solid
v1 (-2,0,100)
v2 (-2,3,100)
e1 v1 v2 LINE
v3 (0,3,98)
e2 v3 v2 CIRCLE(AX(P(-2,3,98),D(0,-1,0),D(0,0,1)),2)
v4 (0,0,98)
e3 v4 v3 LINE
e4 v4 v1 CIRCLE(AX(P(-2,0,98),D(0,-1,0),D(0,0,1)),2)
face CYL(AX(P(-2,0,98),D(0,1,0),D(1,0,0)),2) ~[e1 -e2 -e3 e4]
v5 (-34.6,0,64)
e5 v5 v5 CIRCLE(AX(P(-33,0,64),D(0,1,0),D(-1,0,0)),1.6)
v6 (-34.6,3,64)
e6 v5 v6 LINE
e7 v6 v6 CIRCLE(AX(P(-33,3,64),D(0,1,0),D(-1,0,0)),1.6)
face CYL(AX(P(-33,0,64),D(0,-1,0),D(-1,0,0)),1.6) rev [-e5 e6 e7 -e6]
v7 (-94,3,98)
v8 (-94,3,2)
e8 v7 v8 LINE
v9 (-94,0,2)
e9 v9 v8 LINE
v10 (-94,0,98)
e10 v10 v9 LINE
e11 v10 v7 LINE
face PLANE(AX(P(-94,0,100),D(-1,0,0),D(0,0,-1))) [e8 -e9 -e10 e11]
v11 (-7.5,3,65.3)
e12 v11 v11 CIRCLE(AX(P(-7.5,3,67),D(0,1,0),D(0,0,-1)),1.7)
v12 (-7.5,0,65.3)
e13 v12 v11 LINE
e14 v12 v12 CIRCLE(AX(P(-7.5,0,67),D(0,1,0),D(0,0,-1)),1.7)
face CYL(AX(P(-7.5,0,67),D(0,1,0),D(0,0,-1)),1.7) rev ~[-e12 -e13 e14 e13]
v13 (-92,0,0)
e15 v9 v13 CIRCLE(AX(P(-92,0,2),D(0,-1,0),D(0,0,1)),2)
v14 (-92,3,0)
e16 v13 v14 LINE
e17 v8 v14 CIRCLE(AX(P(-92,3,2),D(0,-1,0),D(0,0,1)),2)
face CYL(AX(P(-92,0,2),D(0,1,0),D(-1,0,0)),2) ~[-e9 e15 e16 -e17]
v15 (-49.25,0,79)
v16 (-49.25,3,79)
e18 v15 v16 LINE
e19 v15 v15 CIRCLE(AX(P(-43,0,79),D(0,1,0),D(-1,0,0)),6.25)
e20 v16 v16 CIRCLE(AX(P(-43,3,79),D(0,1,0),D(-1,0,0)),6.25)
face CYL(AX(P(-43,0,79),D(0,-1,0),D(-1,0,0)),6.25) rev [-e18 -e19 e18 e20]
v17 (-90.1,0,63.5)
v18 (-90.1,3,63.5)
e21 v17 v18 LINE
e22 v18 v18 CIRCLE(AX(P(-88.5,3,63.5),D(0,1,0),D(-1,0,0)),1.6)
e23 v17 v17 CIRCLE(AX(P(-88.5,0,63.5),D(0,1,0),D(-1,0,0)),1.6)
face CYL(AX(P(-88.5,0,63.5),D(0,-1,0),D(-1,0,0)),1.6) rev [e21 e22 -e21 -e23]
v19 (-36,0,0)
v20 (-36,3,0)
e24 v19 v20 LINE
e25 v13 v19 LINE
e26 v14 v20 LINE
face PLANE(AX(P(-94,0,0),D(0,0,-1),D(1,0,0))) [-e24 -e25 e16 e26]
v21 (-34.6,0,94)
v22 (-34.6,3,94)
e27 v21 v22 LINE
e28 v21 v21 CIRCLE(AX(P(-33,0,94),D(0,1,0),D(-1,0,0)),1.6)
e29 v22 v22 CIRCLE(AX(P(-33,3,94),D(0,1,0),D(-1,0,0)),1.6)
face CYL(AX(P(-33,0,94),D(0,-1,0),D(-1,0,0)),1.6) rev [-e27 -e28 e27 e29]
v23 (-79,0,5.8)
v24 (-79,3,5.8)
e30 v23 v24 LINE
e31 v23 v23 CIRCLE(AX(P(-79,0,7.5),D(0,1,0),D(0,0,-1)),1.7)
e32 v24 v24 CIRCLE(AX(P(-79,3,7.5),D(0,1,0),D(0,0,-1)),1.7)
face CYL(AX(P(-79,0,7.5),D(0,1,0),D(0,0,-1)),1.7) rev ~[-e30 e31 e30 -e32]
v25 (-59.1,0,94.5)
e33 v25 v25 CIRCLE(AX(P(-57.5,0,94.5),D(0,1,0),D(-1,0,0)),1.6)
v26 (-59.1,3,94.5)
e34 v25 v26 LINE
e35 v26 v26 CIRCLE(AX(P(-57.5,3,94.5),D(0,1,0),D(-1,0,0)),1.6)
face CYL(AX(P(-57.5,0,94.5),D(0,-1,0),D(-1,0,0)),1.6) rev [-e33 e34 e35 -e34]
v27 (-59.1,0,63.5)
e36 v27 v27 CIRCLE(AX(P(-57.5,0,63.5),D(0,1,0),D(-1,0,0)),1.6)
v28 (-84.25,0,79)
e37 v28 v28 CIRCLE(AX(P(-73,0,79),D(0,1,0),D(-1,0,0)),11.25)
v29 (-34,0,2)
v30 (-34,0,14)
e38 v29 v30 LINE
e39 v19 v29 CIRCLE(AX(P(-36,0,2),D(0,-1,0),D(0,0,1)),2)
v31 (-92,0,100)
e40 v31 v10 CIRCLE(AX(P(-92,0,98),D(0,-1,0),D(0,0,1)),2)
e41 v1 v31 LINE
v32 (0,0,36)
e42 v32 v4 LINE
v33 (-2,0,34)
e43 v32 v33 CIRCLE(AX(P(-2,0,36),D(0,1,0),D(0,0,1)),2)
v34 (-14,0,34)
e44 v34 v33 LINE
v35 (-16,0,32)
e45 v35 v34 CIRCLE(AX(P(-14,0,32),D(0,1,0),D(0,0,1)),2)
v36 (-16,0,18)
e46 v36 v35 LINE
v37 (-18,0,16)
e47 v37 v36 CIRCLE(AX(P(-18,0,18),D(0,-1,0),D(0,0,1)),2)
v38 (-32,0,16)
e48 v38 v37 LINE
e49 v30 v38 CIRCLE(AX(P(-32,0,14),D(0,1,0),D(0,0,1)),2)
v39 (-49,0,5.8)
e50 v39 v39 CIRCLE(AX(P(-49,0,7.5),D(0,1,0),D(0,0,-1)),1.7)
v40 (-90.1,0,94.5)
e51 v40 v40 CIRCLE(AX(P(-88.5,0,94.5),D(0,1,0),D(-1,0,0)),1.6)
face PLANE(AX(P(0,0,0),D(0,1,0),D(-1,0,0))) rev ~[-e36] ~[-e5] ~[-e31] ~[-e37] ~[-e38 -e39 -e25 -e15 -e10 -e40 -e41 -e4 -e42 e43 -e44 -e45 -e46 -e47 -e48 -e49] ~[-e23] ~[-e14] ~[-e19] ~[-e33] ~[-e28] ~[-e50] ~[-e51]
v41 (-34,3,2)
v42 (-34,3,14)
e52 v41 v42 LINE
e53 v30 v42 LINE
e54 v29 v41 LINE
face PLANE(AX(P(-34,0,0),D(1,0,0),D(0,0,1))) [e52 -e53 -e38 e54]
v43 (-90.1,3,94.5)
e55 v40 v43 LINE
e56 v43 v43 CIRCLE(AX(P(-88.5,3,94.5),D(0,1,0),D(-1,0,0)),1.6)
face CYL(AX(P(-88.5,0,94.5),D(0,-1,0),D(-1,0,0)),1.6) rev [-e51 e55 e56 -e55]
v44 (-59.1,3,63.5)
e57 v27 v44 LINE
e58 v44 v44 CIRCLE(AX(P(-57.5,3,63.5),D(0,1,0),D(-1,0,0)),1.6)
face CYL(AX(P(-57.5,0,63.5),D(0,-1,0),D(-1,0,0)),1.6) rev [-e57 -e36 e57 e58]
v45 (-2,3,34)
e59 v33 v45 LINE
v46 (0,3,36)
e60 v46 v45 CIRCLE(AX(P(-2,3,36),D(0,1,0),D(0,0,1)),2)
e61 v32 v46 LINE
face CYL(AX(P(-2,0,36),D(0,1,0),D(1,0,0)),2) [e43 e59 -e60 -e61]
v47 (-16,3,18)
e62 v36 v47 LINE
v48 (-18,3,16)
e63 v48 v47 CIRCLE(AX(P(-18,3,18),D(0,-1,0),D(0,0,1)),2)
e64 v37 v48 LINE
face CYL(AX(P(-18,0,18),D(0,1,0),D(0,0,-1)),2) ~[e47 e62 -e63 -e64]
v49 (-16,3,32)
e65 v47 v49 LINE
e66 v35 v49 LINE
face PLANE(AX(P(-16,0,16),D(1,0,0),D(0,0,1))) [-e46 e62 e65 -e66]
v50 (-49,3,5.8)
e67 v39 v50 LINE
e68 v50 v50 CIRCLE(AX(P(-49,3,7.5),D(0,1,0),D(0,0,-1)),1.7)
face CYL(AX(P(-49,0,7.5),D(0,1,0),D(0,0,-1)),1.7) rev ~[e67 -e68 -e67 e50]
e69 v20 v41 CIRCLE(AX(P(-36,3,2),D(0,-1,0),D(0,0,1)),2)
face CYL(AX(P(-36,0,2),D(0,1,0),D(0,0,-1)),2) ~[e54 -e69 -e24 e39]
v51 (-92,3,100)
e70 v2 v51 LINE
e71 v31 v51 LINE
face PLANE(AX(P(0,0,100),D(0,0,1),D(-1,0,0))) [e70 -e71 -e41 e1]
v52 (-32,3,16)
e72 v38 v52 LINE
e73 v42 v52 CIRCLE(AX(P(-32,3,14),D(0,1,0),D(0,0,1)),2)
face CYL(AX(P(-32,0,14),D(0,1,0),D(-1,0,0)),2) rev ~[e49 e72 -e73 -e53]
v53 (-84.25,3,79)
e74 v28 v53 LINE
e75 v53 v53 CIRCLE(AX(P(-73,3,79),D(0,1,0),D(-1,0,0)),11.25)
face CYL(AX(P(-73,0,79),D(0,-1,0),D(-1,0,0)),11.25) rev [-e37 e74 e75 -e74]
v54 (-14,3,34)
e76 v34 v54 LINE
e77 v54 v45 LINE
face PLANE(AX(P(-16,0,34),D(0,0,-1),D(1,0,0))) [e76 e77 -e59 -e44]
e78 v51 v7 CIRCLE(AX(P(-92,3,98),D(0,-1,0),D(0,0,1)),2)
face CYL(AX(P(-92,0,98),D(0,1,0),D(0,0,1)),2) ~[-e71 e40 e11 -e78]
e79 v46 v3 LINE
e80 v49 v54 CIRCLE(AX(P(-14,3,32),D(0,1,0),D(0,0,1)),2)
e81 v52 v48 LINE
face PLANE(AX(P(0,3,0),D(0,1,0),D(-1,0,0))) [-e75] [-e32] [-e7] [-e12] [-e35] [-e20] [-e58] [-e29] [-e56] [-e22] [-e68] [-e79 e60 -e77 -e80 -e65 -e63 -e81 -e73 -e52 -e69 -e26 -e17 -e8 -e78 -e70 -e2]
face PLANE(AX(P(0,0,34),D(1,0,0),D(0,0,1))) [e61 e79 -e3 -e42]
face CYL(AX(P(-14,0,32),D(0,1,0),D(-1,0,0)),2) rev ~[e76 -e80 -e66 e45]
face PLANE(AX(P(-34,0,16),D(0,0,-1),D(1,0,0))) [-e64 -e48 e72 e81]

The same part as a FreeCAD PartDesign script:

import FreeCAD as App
import Part
import Sketcher


def edges_at(feature, points):
    """Names of the edges that pass closest to the given points."""
    edges = feature.Shape.Edges
    near = lambda p: min(range(len(edges)), key=lambda i: edges[i].distToShape(Part.Vertex(*p))[0])
    return sorted({f"Edge{near(p) + 1}" for p in points})

doc = App.newDocument("Part")
params = doc.addObject("Spreadsheet::Sheet", "Params")
for row, (alias, value) in enumerate([
    ("sketch1_diameter", "3.2 mm"),
    ("sketch1_diameter2", "12.5 mm"),
    ("sketch1_diameter3", "22.5 mm"),
    ("sketch1_width", "16 mm"),
    ("sketch1_width2", "60 mm"),
    ("pad1_length", "3 mm"),
    ("fillet_radius", "2 mm"),
    ("sketch2_diameter", "3.4 mm"),
    ("hole_diameter", "3.4 mm"),
], start=1):
    params.set(f"A{row}", alias)
    params.set(f"B{row}", "=" + value)
    params.setAlias(f"B{row}", alias)

body = doc.addObject("PartDesign::Body", "Body")

sketch1 = body.newObject("Sketcher::SketchObject", "Sketch")
sketch1.AttachmentSupport = (doc.getObject("XZ_Plane"), [""])
sketch1.MapMode = "FlatFace"
sketch1.addGeometry(Part.LineSegment(App.Vector(0, 100, 0), App.Vector(0, 34, 0)), False)
sketch1.addGeometry(Part.LineSegment(App.Vector(0, 34, 0), App.Vector(-16, 34, 0)), False)
sketch1.addGeometry(Part.LineSegment(App.Vector(-16, 34, 0), App.Vector(-16, 16, 0)), False)
sketch1.addGeometry(Part.LineSegment(App.Vector(-16, 16, 0), App.Vector(-34, 16, 0)), False)
sketch1.addGeometry(Part.LineSegment(App.Vector(-34, 16, 0), App.Vector(-34, 0, 0)), False)
sketch1.addGeometry(Part.LineSegment(App.Vector(-34, 0, 0), App.Vector(-94, 0, 0)), False)
sketch1.addGeometry(Part.LineSegment(App.Vector(-94, 0, 0), App.Vector(-94, 100, 0)), False)
sketch1.addGeometry(Part.LineSegment(App.Vector(-94, 100, 0), App.Vector(0, 100, 0)), False)
sketch1.addGeometry(Part.Circle(App.Vector(-33, 64, 0), App.Vector(0, 0, 1), 1.6), False)
sketch1.addGeometry(Part.Circle(App.Vector(-43, 79, 0), App.Vector(0, 0, 1), 6.2), False)
sketch1.addGeometry(Part.Circle(App.Vector(-33, 94, 0), App.Vector(0, 0, 1), 1.6), False)
sketch1.addGeometry(Part.Circle(App.Vector(-57.5, 63.5, 0), App.Vector(0, 0, 1), 1.6), False)
sketch1.addGeometry(Part.Circle(App.Vector(-88.5, 63.5, 0), App.Vector(0, 0, 1), 1.6), False)
sketch1.addGeometry(Part.Circle(App.Vector(-57.5, 94.5, 0), App.Vector(0, 0, 1), 1.6), False)
sketch1.addGeometry(Part.Circle(App.Vector(-73, 79, 0), App.Vector(0, 0, 1), 11.2), False)
sketch1.addGeometry(Part.Circle(App.Vector(-88.5, 94.5, 0), App.Vector(0, 0, 1), 1.6), False)
sketch1.addConstraint(Sketcher.Constraint("Coincident", 0, 2, 1, 1))
sketch1.addConstraint(Sketcher.Constraint("Coincident", 1, 2, 2, 1))
sketch1.addConstraint(Sketcher.Constraint("Coincident", 2, 2, 3, 1))
sketch1.addConstraint(Sketcher.Constraint("Coincident", 3, 2, 4, 1))
sketch1.addConstraint(Sketcher.Constraint("Coincident", 4, 2, 5, 1))
sketch1.addConstraint(Sketcher.Constraint("Coincident", 5, 2, 6, 1))
sketch1.addConstraint(Sketcher.Constraint("Coincident", 6, 2, 7, 1))
sketch1.addConstraint(Sketcher.Constraint("Coincident", 7, 2, 0, 1))
sketch1.addConstraint(Sketcher.Constraint("Vertical", 0))
sketch1.addConstraint(Sketcher.Constraint("Horizontal", 1))
sketch1.addConstraint(Sketcher.Constraint("Vertical", 2))
sketch1.addConstraint(Sketcher.Constraint("Horizontal", 3))
sketch1.addConstraint(Sketcher.Constraint("Vertical", 4))
sketch1.addConstraint(Sketcher.Constraint("Horizontal", 5))
sketch1.addConstraint(Sketcher.Constraint("Vertical", 6))
sketch1.addConstraint(Sketcher.Constraint("Horizontal", 7))
sketch1.addConstraint(Sketcher.Constraint("Equal", 8, 10))
sketch1.addConstraint(Sketcher.Constraint("Equal", 10, 11))
sketch1.addConstraint(Sketcher.Constraint("Equal", 11, 12))
sketch1.addConstraint(Sketcher.Constraint("Equal", 12, 13))
sketch1.addConstraint(Sketcher.Constraint("Equal", 13, 15))
sketch1.addConstraint(Sketcher.Constraint("PointOnObject", 0, 2, -2))
sketch1.addConstraint(Sketcher.Constraint("PointOnObject", 4, 2, -1))
sketch1.addConstraint(Sketcher.Constraint("Horizontal", 11, 3, 12, 3))
sketch1.addConstraint(Sketcher.Constraint("Horizontal", 9, 3, 14, 3))
sketch1.addConstraint(Sketcher.Constraint("Horizontal", 13, 3, 15, 3))
sketch1.addConstraint(Sketcher.Constraint("Vertical", 8, 3, 10, 3))
sketch1.addConstraint(Sketcher.Constraint("Vertical", 11, 3, 13, 3))
sketch1.addConstraint(Sketcher.Constraint("Vertical", 12, 3, 15, 3))
sketch1.addConstraint(Sketcher.Constraint("Equal", 3, 2))
sketch1.addConstraint(Sketcher.Constraint("Equal", 1, 4))
sketch1.addConstraint(Sketcher.Constraint("Diameter", 8, 3.2))
sketch1.addConstraint(Sketcher.Constraint("Diameter", 9, 12.5))
sketch1.addConstraint(Sketcher.Constraint("Diameter", 14, 22.5))
sketch1.addConstraint(Sketcher.Constraint("DistanceX", 1, 2, 1, 1, 16.0))
sketch1.addConstraint(Sketcher.Constraint("DistanceX", 5, 2, 5, 1, 60.0))
sketch1.addConstraint(Sketcher.Constraint("DistanceY", 6, 1, 6, 2, 100.0))
sketch1.addConstraint(Sketcher.Constraint("DistanceY", -1, 1, 0, 2, 34.0))
sketch1.addConstraint(Sketcher.Constraint("DistanceX", 9, 3, 8, 3, 10.0))
sketch1.addConstraint(Sketcher.Constraint("DistanceY", 8, 3, 9, 3, 15.0))
sketch1.addConstraint(Sketcher.Constraint("DistanceY", 9, 3, 10, 3, 15.0))
sketch1.addConstraint(Sketcher.Constraint("DistanceX", 12, 3, 11, 3, 31.0))
sketch1.addConstraint(Sketcher.Constraint("DistanceY", 11, 3, 13, 3, 31.0))
sketch1.addConstraint(Sketcher.Constraint("DistanceX", 14, 3, 9, 3, 30.0))
sketch1.addConstraint(Sketcher.Constraint("DistanceY", 0, 2, 8, 3, 30.0))
sketch1.addConstraint(Sketcher.Constraint("DistanceX", 6, 2, 14, 3, 21.0))
sketch1.addConstraint(Sketcher.Constraint("DistanceY", 11, 3, 9, 3, 15.5))
sketch1.addConstraint(Sketcher.Constraint("DistanceX", 14, 3, 11, 3, 15.5))
sketch1.setExpression("Constraints[31]", "Params.sketch1_diameter")
sketch1.setExpression("Constraints[32]", "Params.sketch1_diameter2")
sketch1.setExpression("Constraints[33]", "Params.sketch1_diameter3")
sketch1.setExpression("Constraints[34]", "Params.sketch1_width")
sketch1.setExpression("Constraints[35]", "Params.sketch1_width2")
pad1 = body.newObject("PartDesign::Pad", "Pad")
pad1.Profile = sketch1
pad1.setExpression("Length", "Params.pad1_length")
pad1.Reversed = True
doc.recompute()

fillet = body.newObject("PartDesign::Fillet", "Fillet")
fillet.Base = (pad1, edges_at(pad1, [
    (-16, 1.5, 34),
    (-34, 1.5, 16),
    (-16, 1.5, 16),
    (0, 1.5, 34),
    (-34, 1.5, 0),
    (0, 1.5, 100),
    (-94, 1.5, 100),
    (-94, 1.5, 0),
]))
fillet.setExpression("Radius", "Params.fillet_radius")

sketch2 = body.newObject("Sketcher::SketchObject", "Sketch001")
sketch2.AttachmentSupport = (doc.getObject("XZ_Plane"), [""])
sketch2.MapMode = "FlatFace"
sketch2.addGeometry(Part.Circle(App.Vector(-7.5, 67, 0), App.Vector(0, 0, 1), 1.7), False)
sketch2.addGeometry(Part.Circle(App.Vector(-49, 7.5, 0), App.Vector(0, 0, 1), 1.7), False)
sketch2.addGeometry(Part.Circle(App.Vector(-79, 7.5, 0), App.Vector(0, 0, 1), 1.7), False)
sketch2.addConstraint(Sketcher.Constraint("Equal", 0, 1))
sketch2.addConstraint(Sketcher.Constraint("Equal", 1, 2))
sketch2.addConstraint(Sketcher.Constraint("Horizontal", 1, 3, 2, 3))
sketch2.addConstraint(Sketcher.Constraint("Diameter", 0, 3.4))
sketch2.addConstraint(Sketcher.Constraint("DistanceY", -1, 1, 0, 3, 67.0))
sketch2.addConstraint(Sketcher.Constraint("DistanceX", 1, 3, -1, 1, 49.0))
sketch2.addConstraint(Sketcher.Constraint("DistanceX", 2, 3, -1, 1, 79.0))
sketch2.addConstraint(Sketcher.Constraint("DistanceX", 0, 3, -1, 1, 7.5))
sketch2.addConstraint(Sketcher.Constraint("DistanceY", -1, 1, 1, 3, 7.5))
sketch2.setExpression("Constraints[3]", "Params.sketch2_diameter")
doc.recompute()
hole = body.newObject("PartDesign::Hole", "Hole")
hole.Profile = sketch2
hole.ThreadType = "None"
hole.setExpression("Diameter", "Params.hole_diameter")
hole.DepthType = "ThroughAll"

doc.recompute()
